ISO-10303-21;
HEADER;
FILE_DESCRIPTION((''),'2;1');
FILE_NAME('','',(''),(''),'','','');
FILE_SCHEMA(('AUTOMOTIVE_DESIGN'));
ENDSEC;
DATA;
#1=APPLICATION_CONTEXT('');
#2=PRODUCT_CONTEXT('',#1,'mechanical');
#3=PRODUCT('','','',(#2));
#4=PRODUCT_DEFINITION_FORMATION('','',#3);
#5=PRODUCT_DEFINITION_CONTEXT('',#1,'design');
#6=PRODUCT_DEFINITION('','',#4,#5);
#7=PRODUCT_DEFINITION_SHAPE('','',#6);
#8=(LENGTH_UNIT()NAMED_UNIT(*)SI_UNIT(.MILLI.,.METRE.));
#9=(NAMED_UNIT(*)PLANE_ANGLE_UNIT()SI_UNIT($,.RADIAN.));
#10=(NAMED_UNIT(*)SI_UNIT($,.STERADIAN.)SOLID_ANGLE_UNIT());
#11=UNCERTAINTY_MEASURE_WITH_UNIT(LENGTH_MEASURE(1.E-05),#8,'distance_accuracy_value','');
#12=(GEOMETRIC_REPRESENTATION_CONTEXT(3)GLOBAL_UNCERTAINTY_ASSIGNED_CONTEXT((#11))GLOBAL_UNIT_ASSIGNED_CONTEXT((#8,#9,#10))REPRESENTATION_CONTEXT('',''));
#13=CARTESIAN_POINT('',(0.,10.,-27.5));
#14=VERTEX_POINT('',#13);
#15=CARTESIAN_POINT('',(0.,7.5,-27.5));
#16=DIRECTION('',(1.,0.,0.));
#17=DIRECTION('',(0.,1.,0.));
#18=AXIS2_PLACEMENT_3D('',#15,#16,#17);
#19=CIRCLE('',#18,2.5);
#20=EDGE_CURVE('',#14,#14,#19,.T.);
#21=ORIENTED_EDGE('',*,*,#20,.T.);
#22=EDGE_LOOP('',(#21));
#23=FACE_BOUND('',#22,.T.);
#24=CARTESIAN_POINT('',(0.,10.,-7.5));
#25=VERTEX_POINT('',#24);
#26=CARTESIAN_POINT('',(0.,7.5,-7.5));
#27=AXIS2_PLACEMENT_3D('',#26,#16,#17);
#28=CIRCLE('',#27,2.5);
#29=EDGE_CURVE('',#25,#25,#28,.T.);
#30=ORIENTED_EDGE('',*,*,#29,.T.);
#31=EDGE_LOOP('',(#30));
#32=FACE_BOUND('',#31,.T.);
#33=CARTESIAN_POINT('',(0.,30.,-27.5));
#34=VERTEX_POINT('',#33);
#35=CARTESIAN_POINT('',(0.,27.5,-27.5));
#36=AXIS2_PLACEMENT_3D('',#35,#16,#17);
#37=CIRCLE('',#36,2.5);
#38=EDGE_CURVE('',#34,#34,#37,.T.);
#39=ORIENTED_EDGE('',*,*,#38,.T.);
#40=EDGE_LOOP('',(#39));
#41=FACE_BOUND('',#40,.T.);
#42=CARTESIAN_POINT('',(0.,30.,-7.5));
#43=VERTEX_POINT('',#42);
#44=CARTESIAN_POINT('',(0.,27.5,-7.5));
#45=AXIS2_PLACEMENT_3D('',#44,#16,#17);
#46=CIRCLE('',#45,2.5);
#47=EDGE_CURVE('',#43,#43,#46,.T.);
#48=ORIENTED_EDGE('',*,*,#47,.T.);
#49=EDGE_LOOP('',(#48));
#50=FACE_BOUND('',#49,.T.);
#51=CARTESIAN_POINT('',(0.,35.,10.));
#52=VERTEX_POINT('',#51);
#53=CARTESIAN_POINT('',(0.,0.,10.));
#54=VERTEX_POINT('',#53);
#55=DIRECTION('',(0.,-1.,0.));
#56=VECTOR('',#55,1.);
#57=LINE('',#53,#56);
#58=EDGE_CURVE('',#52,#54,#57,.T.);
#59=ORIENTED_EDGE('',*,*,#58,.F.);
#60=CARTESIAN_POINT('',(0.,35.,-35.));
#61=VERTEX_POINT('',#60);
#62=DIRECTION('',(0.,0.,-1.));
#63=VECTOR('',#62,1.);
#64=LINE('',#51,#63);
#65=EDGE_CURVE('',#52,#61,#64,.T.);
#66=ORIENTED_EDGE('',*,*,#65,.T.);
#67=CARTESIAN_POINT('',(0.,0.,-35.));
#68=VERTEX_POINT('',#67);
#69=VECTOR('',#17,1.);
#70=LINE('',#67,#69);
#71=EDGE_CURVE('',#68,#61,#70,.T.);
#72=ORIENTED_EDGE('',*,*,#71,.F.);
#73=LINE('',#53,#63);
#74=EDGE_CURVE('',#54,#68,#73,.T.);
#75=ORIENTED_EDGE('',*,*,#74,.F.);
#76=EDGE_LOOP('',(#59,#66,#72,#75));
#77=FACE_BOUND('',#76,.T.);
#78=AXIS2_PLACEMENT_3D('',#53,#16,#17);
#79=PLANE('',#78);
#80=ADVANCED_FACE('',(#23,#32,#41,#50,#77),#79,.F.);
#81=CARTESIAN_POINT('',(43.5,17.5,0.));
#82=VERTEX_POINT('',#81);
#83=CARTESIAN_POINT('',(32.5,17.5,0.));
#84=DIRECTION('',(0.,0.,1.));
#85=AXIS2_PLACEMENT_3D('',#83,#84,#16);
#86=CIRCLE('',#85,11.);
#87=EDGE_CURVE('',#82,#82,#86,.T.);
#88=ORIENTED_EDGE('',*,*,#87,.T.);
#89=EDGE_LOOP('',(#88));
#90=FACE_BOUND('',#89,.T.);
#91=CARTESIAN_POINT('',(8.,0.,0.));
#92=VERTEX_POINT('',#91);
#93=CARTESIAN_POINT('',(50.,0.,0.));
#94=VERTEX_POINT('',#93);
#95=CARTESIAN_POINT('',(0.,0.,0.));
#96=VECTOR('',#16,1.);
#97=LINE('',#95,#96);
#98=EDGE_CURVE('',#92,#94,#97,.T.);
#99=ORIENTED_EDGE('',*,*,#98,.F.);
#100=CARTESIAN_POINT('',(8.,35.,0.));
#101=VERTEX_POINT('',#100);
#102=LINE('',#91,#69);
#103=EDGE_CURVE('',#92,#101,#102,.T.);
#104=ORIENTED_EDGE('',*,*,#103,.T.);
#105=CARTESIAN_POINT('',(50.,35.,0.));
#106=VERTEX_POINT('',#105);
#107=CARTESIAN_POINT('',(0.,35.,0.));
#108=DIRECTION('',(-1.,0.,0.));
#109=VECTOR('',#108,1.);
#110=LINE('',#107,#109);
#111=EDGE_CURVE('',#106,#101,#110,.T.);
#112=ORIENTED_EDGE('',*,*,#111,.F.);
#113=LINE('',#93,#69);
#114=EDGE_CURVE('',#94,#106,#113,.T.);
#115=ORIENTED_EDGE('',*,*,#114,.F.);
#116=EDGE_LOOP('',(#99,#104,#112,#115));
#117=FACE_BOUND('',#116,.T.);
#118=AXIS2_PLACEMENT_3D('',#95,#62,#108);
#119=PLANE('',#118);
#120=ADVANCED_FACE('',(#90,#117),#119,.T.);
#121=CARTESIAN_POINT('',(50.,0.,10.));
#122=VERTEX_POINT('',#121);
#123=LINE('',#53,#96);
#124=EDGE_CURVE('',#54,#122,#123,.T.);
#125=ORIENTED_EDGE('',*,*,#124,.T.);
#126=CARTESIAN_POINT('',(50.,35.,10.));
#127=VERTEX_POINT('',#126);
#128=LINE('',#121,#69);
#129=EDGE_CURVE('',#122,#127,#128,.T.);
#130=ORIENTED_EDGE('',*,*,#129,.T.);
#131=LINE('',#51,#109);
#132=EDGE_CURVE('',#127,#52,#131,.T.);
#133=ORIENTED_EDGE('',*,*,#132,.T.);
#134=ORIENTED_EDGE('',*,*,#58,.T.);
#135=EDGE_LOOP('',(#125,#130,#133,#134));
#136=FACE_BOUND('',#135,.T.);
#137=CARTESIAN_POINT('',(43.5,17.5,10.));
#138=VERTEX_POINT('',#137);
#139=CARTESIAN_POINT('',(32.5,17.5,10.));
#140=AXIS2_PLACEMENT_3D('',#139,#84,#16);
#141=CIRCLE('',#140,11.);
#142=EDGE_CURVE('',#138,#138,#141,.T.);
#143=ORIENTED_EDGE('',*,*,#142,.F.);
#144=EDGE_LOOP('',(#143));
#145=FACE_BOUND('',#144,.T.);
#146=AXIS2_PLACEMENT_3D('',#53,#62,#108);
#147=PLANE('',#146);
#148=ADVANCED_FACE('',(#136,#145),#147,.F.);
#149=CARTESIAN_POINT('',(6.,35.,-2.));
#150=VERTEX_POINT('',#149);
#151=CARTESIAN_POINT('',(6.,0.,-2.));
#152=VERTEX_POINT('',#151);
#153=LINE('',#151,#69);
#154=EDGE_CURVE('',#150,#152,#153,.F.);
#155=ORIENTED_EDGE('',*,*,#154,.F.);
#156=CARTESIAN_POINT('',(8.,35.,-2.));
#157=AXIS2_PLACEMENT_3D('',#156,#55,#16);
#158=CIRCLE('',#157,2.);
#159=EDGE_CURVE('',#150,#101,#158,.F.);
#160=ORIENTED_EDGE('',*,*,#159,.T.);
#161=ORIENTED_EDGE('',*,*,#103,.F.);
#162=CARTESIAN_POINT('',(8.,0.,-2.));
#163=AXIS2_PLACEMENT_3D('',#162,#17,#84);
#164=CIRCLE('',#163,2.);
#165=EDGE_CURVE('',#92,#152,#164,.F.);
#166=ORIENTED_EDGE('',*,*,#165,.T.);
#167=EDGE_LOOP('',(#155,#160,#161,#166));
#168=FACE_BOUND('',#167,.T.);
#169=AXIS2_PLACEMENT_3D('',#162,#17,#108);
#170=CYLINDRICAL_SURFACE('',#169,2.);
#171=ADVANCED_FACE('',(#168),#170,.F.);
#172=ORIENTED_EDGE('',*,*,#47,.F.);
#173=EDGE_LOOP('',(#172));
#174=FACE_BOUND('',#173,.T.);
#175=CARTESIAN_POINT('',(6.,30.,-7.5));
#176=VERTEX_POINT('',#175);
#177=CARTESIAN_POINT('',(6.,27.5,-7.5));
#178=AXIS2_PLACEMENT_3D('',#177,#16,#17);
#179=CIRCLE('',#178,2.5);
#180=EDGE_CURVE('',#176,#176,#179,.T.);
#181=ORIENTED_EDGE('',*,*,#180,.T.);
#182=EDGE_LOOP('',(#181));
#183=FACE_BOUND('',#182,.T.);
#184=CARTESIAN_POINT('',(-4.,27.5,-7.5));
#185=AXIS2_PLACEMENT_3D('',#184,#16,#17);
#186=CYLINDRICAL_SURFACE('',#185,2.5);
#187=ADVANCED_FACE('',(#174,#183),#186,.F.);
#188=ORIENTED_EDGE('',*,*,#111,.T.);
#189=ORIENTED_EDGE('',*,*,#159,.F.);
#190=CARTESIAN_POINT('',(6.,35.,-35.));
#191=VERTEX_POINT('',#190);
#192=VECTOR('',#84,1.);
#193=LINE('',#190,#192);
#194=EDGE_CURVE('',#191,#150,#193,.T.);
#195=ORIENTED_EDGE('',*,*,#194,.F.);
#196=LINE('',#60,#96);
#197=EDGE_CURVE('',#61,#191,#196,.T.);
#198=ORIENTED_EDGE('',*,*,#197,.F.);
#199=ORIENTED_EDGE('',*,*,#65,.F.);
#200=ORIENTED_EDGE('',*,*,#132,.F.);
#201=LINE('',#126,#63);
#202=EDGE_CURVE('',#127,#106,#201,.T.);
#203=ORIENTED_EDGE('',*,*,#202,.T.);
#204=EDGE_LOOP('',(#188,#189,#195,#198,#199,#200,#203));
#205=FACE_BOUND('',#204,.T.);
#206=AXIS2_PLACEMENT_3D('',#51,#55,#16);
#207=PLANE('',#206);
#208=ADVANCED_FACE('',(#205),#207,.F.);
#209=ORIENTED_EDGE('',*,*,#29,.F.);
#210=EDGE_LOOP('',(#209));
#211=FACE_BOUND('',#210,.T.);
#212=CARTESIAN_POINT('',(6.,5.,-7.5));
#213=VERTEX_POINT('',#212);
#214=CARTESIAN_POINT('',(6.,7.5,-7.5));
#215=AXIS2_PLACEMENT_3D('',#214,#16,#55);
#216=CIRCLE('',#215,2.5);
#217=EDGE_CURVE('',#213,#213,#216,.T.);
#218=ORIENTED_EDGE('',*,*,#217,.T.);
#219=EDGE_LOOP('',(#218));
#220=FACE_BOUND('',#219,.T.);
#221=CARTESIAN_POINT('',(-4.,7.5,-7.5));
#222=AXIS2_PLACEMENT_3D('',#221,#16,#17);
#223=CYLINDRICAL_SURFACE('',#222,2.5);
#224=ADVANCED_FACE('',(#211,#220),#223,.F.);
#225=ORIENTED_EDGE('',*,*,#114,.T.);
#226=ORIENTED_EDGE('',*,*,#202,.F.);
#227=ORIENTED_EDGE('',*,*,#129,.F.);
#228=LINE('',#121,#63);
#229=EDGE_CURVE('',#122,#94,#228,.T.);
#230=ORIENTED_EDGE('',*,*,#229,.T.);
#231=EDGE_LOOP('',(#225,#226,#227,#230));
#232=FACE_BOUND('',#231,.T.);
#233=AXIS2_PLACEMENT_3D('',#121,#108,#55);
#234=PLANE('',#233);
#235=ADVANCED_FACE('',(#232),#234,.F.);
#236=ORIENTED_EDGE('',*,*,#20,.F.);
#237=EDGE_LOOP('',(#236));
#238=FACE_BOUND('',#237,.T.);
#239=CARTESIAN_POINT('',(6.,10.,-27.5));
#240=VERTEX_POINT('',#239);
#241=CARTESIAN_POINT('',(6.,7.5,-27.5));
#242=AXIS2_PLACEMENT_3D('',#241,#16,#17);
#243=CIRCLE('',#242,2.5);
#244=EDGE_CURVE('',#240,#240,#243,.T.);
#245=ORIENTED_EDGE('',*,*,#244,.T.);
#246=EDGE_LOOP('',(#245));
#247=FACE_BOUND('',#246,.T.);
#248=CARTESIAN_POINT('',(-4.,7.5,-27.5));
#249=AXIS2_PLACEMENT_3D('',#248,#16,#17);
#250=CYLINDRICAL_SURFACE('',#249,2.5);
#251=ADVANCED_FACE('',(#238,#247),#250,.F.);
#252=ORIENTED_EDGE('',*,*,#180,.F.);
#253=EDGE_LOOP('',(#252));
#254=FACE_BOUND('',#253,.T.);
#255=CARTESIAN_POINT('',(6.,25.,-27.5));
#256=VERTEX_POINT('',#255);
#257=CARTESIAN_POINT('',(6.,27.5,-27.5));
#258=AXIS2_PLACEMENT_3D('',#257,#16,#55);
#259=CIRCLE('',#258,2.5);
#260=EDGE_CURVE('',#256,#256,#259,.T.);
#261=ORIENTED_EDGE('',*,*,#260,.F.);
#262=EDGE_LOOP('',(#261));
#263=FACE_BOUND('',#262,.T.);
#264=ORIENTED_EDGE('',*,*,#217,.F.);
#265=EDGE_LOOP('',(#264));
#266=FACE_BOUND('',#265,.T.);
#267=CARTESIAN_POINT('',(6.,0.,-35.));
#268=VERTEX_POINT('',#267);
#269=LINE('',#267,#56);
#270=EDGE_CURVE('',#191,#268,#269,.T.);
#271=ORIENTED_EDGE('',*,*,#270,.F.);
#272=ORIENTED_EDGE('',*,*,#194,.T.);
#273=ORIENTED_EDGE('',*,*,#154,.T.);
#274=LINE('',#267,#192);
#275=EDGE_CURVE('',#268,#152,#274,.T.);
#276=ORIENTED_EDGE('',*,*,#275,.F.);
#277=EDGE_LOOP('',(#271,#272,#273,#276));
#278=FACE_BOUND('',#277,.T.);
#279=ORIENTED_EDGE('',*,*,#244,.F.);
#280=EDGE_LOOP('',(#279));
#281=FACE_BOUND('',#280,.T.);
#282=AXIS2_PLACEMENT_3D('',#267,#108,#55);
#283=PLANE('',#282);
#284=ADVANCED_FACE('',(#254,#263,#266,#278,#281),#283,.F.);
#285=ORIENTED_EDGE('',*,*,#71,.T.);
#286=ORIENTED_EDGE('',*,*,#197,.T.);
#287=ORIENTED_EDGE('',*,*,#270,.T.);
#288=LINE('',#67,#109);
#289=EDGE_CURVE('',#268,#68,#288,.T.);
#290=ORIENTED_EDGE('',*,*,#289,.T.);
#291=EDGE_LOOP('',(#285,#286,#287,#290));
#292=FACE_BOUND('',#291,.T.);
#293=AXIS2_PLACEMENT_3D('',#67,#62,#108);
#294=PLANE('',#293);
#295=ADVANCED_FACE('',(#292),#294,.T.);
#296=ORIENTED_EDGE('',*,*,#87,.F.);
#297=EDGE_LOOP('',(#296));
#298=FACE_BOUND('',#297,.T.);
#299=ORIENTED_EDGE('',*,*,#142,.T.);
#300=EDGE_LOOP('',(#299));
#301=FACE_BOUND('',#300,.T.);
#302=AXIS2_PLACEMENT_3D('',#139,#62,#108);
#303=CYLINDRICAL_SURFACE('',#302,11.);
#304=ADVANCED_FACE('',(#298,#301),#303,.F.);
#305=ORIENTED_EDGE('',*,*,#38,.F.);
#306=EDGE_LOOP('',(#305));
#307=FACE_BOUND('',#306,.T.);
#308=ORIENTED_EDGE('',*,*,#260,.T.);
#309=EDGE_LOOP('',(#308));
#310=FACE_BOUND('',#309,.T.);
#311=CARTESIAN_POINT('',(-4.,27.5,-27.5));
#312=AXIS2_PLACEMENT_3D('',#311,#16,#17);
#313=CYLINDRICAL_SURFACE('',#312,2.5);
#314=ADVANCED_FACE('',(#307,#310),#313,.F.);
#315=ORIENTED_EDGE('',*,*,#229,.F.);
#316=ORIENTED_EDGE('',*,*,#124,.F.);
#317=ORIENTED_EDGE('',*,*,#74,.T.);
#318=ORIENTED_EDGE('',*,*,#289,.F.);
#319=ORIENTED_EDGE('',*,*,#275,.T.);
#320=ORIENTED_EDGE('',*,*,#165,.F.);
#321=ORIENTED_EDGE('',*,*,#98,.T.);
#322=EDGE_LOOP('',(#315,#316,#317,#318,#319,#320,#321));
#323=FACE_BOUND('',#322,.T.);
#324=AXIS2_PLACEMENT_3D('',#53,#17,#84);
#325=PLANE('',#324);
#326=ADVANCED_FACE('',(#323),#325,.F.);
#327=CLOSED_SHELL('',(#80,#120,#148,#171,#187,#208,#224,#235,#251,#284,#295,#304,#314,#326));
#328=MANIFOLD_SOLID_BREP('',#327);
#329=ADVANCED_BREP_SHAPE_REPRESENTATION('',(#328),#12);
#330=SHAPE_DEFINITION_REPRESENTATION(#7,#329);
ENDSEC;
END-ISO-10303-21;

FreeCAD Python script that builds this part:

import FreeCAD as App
import Part
import Sketcher

V = App.Vector
Q = App.Units.Quantity


def edges_at(feature, points):
    """Names of the edges that pass closest to the given points."""
    edges = feature.Shape.Edges
    near = lambda p: min(range(len(edges)), key=lambda i: edges[i].distToShape(Part.Vertex(*p))[0])
    return sorted({f"Edge{near(p) + 1}" for p in points})


def add_polygon(sketch, points):
    """Adds a closed chain of lines whose ends are joined by coincident constraints."""
    first, n = sketch.GeometryCount, len(points)
    for a, b in zip(points, points[1:] + points[:1]):
        sketch.addGeometry(Part.LineSegment(App.Vector(*a, 0), App.Vector(*b, 0)), False)
    for i in range(n):
        sketch.addConstraint(Sketcher.Constraint("Coincident", first + i, 2, first + (i + 1) % n, 1))

doc = App.newDocument("Part")
body = doc.addObject("PartDesign::Body", "Body")

# Sketch on XY plane
sketch1 = doc.addObject("Sketcher::SketchObject", "Sketch")
body.addObject(sketch1)
sketch1.AttachmentSupport = (doc.XY_Plane, [""])
sketch1.MapMode = "FlatFace"
add_polygon(sketch1, [(0, 35), (0, 0), (50, 0), (50, 35)])  # lines 0-3
sketch1.addGeometry(Part.Circle(V(32, 18, 0), V(0, 0, 1), 11), False)  # 4
sketch1.addConstraint([
    Sketcher.Constraint("Vertical", 0),
    Sketcher.Constraint("Horizontal", 1),
    Sketcher.Constraint("Vertical", 2),
    Sketcher.Constraint("Horizontal", 3),
    Sketcher.Constraint("Coincident", 0, 2, -1, 1),
    Sketcher.Constraint("Diameter", 4, Q("22 mm")),
    Sketcher.Constraint("DistanceX", 1, 1, 1, 2, Q("50 mm")),
    Sketcher.Constraint("DistanceY", 0, 2, 0, 1, Q("35 mm")),
    Sketcher.Constraint("DistanceX", -1, 1, 4, 3, Q("32.5 mm")),
    Sketcher.Constraint("DistanceY", -1, 1, 4, 3, Q("17.5 mm")),
])
pad1 = doc.addObject("PartDesign::Pad", "Pad")
body.addObject(pad1)
pad1.Profile = sketch1
pad1.Length = 10

# Sketch on XY plane
sketch2 = doc.addObject("Sketcher::SketchObject", "Sketch001")
body.addObject(sketch2)
sketch2.AttachmentSupport = (doc.XY_Plane, [""])
sketch2.MapMode = "FlatFace"
add_polygon(sketch2, [(6, 0), (0, 0), (0, 35), (6, 35)])  # lines 0-3
sketch2.addConstraint([
    Sketcher.Constraint("Horizontal", 0),
    Sketcher.Constraint("Vertical", 1),
    Sketcher.Constraint("Horizontal", 2),
    Sketcher.Constraint("Vertical", 3),
    Sketcher.Constraint("Coincident", 0, 2, -1, 1),
    Sketcher.Constraint("DistanceX", 0, 2, 0, 1, Q("6 mm")),
    Sketcher.Constraint("DistanceY", 1, 1, 1, 2, Q("35 mm")),
])
pad2 = doc.addObject("PartDesign::Pad", "Pad001")
body.addObject(pad2)
pad2.Profile = sketch2
pad2.Length = 35
pad2.Reversed = True

# Sketch on YZ plane
sketch3 = doc.addObject("Sketcher::SketchObject", "Sketch002")
body.addObject(sketch3)
sketch3.AttachmentSupport = (doc.YZ_Plane, [""])
sketch3.MapMode = "FlatFace"
sketch3.AttachmentOffset = App.Placement(V(0, 0, 6), App.Rotation())
sketch3.addGeometry([
    Part.Circle(V(27.5, -7.5, 0), V(0, 0, 1), 2.5),
    Part.Circle(V(27.5, -27.5, 0), V(0, 0, 1), 2.5),
    Part.Circle(V(7.5, -7.5, 0), V(0, 0, 1), 2.5),
    Part.Circle(V(7.5, -27.5, 0), V(0, 0, 1), 2.5),
], False)
sketch3.addConstraint([
    Sketcher.Constraint("Equal", 0, 1),
    Sketcher.Constraint("Equal", 1, 2),
    Sketcher.Constraint("Equal", 2, 3),
    Sketcher.Constraint("Horizontal", 0, 3, 2, 3),
    Sketcher.Constraint("Horizontal", 1, 3, 3, 3),
    Sketcher.Constraint("Vertical", 0, 3, 1, 3),
    Sketcher.Constraint("Vertical", 2, 3, 3, 3),
    Sketcher.Constraint("Diameter", 0, Q("5 mm")),
    Sketcher.Constraint("DistanceY", 1, 3, 0, 3, Q("20 mm")),
    Sketcher.Constraint("DistanceX", 2, 3, 0, 3, Q("20 mm")),
    Sketcher.Constraint("DistanceX", -1, 1, 0, 3, Q("27.5 mm")),
    Sketcher.Constraint("DistanceY", 0, 3, -1, 1, Q("7.5 mm")),
])
pocket1 = doc.addObject("PartDesign::Pocket", "Pocket")
body.addObject(pocket1)
pocket1.Profile = sketch3
pocket1.Length = 10
doc.recompute()

fillet = doc.addObject("PartDesign::Fillet", "Fillet")
body.addObject(fillet)
fillet.Base = (pocket1, edges_at(pocket1, [(6, 17.5, 0)]))
fillet.Radius = 2

doc.recompute()
